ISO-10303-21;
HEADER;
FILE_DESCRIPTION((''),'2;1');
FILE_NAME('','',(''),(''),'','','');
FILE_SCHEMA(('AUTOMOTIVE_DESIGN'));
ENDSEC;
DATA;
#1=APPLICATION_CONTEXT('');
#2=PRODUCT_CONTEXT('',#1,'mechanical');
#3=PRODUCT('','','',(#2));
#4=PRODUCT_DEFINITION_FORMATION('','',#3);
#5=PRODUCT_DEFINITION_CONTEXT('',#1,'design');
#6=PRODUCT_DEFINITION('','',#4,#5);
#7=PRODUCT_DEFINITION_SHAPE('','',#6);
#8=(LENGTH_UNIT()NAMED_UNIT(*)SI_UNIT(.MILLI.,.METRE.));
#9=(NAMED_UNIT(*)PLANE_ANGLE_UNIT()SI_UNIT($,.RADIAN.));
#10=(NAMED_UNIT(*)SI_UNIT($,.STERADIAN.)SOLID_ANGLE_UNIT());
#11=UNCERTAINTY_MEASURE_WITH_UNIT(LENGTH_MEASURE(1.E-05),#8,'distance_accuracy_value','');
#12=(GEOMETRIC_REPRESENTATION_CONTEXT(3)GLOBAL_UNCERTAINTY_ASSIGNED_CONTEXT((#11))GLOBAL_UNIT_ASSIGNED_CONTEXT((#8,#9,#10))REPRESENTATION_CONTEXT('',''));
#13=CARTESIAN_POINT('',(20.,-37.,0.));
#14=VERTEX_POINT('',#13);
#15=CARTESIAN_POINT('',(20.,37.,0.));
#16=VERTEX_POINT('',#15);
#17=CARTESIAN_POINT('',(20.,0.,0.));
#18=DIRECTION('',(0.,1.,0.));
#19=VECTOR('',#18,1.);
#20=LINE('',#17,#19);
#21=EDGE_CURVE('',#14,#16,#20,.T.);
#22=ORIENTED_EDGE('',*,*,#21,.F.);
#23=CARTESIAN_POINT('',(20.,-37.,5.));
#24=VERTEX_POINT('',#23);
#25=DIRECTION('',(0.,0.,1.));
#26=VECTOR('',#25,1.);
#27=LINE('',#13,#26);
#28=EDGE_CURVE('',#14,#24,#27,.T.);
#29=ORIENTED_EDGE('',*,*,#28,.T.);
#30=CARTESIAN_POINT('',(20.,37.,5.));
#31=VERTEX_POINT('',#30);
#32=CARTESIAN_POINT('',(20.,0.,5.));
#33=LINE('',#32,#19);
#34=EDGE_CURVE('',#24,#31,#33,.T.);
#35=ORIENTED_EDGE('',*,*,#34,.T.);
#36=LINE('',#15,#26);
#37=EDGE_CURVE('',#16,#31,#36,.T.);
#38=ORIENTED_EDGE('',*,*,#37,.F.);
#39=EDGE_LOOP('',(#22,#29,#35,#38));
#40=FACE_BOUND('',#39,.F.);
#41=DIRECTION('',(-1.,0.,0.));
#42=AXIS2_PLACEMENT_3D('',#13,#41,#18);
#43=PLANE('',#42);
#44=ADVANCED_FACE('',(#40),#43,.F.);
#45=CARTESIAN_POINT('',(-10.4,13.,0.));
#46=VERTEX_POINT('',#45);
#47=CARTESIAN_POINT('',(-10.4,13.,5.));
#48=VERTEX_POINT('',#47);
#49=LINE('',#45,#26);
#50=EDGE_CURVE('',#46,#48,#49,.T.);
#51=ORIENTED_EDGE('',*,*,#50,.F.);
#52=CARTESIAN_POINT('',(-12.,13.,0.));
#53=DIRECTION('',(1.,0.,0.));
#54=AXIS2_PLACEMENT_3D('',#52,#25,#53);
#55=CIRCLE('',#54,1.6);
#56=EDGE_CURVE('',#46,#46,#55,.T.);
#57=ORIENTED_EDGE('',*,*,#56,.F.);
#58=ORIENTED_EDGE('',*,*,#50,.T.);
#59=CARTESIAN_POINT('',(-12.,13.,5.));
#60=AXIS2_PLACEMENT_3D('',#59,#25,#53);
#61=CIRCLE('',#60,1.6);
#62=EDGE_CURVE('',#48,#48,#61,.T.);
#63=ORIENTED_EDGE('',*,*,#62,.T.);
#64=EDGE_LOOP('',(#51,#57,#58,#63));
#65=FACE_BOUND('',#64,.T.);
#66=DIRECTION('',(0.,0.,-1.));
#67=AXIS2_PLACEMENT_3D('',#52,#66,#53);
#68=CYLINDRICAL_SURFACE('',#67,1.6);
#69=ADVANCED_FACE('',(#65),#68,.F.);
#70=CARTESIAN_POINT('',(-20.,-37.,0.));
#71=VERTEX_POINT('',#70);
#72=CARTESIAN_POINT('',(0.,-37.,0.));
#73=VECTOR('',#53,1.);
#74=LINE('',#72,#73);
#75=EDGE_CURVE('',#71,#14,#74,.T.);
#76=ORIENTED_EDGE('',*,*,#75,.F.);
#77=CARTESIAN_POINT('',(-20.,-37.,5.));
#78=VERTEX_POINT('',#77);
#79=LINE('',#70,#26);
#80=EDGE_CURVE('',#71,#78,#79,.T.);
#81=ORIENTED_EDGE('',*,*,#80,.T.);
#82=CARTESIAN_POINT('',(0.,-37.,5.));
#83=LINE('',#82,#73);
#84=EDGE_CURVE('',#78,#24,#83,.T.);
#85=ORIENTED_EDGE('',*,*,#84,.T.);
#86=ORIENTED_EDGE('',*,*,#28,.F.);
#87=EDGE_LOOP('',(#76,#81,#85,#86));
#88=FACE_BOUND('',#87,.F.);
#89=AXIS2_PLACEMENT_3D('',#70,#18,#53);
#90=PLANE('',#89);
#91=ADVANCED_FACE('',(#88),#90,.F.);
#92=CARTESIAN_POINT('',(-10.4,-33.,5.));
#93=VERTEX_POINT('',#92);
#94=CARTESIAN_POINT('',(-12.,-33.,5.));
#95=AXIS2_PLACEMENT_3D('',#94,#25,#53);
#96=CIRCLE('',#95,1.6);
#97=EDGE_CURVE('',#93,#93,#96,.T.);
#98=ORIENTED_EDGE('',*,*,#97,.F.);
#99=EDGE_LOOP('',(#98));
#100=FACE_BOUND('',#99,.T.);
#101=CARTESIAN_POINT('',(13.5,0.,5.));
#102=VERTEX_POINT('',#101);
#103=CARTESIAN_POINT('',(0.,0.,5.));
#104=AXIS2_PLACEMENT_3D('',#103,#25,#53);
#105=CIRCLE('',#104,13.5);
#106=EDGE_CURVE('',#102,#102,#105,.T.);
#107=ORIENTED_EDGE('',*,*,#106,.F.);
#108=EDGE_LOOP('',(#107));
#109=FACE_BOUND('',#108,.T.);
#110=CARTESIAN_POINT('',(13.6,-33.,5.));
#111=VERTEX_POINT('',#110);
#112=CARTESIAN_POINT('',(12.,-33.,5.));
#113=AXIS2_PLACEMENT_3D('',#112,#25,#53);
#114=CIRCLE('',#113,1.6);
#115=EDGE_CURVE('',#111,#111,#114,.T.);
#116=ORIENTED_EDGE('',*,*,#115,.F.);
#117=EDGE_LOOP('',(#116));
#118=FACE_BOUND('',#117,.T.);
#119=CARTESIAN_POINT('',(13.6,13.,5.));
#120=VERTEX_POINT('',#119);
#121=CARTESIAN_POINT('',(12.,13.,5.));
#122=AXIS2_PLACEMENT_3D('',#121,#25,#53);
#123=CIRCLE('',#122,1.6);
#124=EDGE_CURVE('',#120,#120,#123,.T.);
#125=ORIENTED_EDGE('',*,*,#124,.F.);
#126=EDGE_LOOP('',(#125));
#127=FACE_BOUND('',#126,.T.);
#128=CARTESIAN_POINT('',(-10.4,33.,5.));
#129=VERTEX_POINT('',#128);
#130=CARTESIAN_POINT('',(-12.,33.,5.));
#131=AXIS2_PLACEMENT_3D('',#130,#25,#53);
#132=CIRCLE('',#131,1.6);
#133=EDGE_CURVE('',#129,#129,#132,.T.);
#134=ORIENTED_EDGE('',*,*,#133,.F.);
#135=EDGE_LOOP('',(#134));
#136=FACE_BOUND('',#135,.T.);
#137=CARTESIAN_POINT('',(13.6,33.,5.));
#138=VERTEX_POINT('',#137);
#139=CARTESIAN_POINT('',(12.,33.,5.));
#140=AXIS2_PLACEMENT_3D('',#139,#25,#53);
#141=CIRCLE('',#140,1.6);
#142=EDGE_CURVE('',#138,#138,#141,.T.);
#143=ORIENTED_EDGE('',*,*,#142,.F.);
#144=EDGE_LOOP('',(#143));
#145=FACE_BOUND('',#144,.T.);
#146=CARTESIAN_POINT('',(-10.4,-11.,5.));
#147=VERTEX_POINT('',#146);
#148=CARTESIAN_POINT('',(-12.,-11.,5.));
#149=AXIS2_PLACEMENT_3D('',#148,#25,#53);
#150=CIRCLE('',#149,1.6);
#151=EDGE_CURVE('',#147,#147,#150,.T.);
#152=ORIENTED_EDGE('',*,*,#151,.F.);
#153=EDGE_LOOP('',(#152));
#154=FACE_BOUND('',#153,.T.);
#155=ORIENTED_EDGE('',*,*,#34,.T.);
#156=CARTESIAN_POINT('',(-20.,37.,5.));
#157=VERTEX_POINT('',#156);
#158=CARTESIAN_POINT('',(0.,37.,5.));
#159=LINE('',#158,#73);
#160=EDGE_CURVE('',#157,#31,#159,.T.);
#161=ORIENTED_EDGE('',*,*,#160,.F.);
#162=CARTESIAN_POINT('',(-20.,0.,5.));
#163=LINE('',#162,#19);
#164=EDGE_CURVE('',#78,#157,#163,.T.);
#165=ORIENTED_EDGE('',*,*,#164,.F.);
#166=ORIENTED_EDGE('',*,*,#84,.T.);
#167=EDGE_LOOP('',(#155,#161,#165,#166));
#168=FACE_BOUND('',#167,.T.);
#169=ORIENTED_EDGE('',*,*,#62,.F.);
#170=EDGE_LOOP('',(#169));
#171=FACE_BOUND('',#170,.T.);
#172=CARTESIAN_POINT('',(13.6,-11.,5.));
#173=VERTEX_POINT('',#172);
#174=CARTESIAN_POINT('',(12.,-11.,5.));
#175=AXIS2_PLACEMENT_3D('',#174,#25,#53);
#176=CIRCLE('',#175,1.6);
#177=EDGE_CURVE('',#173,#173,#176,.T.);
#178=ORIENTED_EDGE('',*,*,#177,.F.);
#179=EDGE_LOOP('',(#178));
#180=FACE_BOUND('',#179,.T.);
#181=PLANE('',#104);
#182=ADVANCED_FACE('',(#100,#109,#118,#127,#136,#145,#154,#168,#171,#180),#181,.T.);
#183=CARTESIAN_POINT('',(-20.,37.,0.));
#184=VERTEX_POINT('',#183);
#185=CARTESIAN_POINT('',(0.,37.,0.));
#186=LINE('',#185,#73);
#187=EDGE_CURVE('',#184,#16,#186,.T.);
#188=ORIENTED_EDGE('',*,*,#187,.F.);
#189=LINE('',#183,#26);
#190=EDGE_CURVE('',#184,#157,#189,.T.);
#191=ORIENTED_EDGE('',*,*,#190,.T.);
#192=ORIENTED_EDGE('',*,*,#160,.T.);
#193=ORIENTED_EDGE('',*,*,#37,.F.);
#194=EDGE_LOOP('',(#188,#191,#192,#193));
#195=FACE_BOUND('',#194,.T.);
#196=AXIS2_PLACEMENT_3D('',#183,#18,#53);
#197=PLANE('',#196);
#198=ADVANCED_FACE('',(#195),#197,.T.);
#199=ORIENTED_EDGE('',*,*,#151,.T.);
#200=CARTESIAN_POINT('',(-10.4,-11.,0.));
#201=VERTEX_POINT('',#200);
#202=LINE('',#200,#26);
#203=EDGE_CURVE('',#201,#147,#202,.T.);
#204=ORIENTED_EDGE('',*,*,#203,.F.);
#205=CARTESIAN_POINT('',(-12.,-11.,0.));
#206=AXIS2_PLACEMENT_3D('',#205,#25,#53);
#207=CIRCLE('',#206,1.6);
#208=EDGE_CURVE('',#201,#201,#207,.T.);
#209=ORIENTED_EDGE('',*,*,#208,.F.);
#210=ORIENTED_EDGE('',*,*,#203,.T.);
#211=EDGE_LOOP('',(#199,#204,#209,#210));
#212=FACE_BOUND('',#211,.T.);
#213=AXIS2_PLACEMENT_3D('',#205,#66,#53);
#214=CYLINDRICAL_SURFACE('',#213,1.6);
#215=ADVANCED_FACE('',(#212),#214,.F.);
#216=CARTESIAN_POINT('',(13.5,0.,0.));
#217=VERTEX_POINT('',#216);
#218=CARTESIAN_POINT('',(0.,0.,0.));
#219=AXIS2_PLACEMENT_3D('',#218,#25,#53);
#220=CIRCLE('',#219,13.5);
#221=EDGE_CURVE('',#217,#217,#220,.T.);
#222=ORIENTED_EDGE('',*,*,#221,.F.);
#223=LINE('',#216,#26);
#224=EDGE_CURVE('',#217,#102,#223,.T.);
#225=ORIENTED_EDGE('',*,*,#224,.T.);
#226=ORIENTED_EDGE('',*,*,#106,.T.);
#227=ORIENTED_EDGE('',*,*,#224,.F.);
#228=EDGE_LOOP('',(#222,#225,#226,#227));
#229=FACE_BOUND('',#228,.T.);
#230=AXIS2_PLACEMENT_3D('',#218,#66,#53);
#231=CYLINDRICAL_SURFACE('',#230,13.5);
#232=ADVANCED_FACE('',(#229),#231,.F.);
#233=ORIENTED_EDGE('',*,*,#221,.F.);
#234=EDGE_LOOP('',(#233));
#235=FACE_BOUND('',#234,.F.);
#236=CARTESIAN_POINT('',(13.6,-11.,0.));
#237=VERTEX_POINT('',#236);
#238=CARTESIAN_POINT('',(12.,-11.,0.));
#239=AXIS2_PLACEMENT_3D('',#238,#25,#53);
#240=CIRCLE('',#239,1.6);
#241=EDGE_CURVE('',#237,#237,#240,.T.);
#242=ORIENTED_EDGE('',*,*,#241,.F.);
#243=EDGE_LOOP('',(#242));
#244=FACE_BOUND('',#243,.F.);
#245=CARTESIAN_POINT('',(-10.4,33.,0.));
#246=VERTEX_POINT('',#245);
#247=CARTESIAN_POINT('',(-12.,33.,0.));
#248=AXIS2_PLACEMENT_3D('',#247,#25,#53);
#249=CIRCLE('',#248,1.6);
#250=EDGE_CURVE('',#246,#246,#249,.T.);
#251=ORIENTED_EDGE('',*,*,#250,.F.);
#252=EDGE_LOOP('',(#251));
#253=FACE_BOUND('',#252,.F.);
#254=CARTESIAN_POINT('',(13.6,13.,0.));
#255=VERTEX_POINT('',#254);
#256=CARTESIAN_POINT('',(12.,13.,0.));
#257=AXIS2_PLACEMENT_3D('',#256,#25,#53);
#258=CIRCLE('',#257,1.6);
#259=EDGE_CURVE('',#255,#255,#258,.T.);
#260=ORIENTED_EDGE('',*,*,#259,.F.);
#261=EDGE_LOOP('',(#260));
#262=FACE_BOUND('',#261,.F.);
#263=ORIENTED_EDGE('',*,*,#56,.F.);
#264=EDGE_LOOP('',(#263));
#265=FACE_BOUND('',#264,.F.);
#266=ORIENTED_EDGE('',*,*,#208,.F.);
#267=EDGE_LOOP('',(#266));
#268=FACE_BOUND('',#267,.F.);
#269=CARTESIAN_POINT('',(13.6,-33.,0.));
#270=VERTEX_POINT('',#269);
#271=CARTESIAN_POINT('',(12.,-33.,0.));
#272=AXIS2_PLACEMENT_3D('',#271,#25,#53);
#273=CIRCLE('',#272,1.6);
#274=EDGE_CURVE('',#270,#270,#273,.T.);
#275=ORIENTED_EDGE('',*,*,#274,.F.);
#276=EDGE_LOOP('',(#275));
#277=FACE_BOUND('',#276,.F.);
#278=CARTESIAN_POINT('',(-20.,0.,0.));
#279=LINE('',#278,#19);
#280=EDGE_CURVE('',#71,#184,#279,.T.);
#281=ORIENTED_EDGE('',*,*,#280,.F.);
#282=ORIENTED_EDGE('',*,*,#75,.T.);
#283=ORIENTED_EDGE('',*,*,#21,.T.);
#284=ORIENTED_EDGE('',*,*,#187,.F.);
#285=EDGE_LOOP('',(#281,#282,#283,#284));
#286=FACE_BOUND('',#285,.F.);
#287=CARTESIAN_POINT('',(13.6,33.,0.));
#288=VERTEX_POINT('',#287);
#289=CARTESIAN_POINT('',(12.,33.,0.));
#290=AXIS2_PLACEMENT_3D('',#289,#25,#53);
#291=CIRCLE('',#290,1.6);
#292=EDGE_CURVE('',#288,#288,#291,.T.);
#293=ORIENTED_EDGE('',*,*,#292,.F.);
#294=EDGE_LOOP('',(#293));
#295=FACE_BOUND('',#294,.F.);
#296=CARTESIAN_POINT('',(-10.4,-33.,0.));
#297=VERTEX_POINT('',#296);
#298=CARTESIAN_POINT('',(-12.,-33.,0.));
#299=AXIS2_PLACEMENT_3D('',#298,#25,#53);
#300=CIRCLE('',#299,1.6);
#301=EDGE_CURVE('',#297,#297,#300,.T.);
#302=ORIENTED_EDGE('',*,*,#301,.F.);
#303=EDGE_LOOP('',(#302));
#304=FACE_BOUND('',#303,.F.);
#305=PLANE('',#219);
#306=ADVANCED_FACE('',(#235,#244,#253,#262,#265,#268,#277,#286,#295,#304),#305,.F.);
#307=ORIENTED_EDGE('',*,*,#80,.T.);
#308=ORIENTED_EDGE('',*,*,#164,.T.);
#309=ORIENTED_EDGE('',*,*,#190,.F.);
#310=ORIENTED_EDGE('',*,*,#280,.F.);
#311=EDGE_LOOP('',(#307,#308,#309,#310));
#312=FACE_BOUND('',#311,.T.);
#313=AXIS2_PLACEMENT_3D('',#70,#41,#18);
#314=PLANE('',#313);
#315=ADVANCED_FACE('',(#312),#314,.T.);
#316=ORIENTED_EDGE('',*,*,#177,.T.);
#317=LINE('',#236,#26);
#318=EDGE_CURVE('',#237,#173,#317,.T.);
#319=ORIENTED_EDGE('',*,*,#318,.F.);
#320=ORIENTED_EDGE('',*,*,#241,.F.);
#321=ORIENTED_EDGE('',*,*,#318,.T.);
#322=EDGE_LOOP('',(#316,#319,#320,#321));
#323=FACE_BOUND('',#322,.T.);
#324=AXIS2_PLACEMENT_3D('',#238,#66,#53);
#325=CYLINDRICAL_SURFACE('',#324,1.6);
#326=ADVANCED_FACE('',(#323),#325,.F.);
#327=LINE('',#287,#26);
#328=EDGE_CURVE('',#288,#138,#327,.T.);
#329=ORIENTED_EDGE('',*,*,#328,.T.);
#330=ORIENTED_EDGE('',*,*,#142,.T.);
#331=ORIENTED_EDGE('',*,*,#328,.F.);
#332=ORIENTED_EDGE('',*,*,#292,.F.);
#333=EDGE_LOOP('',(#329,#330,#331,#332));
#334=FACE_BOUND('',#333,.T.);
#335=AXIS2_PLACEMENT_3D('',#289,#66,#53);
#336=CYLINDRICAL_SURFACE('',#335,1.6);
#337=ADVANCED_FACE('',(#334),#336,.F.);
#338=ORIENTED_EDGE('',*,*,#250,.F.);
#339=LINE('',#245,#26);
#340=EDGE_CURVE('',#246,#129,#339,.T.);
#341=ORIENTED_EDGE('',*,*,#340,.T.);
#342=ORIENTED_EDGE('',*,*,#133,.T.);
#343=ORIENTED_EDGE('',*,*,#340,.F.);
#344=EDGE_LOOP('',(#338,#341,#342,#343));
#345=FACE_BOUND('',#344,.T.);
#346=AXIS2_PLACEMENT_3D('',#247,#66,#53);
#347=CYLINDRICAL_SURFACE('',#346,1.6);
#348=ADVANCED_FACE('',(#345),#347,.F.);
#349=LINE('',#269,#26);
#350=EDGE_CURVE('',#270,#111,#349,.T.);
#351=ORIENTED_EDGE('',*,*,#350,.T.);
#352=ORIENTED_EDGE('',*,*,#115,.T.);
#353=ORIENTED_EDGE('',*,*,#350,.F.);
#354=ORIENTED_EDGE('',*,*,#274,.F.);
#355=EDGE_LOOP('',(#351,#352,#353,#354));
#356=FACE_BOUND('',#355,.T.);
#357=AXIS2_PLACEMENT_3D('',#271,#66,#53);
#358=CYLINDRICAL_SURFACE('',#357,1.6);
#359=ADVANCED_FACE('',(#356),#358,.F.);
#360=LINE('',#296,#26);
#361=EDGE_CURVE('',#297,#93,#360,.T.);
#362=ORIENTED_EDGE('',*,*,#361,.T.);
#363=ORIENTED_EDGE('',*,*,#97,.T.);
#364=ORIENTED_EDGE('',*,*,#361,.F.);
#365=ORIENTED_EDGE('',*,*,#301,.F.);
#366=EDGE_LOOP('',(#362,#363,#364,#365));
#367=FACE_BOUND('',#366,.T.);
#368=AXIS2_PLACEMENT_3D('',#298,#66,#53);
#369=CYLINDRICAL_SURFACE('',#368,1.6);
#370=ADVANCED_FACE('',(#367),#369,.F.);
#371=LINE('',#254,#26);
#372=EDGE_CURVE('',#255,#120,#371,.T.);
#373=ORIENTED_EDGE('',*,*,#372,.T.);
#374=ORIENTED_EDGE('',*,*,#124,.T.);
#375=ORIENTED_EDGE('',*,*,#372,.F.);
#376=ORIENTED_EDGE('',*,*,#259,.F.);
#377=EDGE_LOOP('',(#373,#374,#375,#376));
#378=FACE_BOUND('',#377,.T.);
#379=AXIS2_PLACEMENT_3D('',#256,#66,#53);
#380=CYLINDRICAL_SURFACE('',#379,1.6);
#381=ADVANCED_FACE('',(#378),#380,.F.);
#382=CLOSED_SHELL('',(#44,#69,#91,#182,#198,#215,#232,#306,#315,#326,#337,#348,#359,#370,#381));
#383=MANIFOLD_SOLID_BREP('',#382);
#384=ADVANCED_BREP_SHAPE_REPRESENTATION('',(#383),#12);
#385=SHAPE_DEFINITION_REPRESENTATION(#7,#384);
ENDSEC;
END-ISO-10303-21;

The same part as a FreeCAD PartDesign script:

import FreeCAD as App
import Part
import Sketcher
Q = App.Units.Quantity


def add_polygon(sketch, points):
    """Adds a closed chain of lines whose ends are joined by coincident constraints."""
    first, n = sketch.GeometryCount, len(points)
    for a, b in zip(points, points[1:] + points[:1]):
        sketch.addGeometry(Part.LineSegment(App.Vector(*a, 0), App.Vector(*b, 0)), False)
    for i in range(n):
        sketch.addConstraint(Sketcher.Constraint("Coincident", first + i, 2, first + (i + 1) % n, 1))

doc = App.newDocument("Part")
body = doc.addObject("PartDesign::Body", "Body")

sketch1 = body.newObject("Sketcher::SketchObject", "Sketch")
sketch1.AttachmentSupport = (doc.getObject("XY_Plane"), [""])
sketch1.MapMode = "FlatFace"
add_polygon(sketch1, [(-20, 37), (-20, -37), (20, -37), (20, 37)])
sketch1.addGeometry(Part.Circle(App.Vector(-12, -33, 0), App.Vector(0, 0, 1), 1.6), False)
sketch1.addGeometry(Part.Circle(App.Vector(-12, -11, 0), App.Vector(0, 0, 1), 1.6), False)
sketch1.addGeometry(Part.Circle(App.Vector(12, -33, 0), App.Vector(0, 0, 1), 1.6), False)
sketch1.addGeometry(Part.Circle(App.Vector(12, -11, 0), App.Vector(0, 0, 1), 1.6), False)
sketch1.addGeometry(Part.Circle(App.Vector(-12, 13, 0), App.Vector(0, 0, 1), 1.6), False)
sketch1.addGeometry(Part.Circle(App.Vector(-12, 33, 0), App.Vector(0, 0, 1), 1.6), False)
sketch1.addGeometry(Part.Circle(App.Vector(0, 0, 0), App.Vector(0, 0, 1), 13.5), False)
sketch1.addGeometry(Part.Circle(App.Vector(12, 13, 0), App.Vector(0, 0, 1), 1.6), False)
sketch1.addGeometry(Part.Circle(App.Vector(12, 33, 0), App.Vector(0, 0, 1), 1.6), False)
sketch1.addConstraint([
    Sketcher.Constraint("Vertical", 0),
    Sketcher.Constraint("Horizontal", 1),
    Sketcher.Constraint("Vertical", 2),
    Sketcher.Constraint("Horizontal", 3),
    Sketcher.Constraint("Coincident", 10, 3, -1, 1),
    Sketcher.Constraint("Equal", 4, 5),
    Sketcher.Constraint("Equal", 5, 6),
    Sketcher.Constraint("Equal", 6, 7),
    Sketcher.Constraint("Equal", 7, 8),
    Sketcher.Constraint("Equal", 8, 9),
    Sketcher.Constraint("Equal", 9, 11),
    Sketcher.Constraint("Equal", 11, 12),
    Sketcher.Constraint("Symmetric", 6, 3, 9, 3, -1, 1),
    Sketcher.Constraint("Symmetric", 4, 3, 12, 3, -1, 1),
    Sketcher.Constraint("Symmetric", 0, 2, 2, 2, -1, 1),
    Sketcher.Constraint("Symmetric", 4, 3, 6, 3, -2),
    Sketcher.Constraint("Symmetric", 5, 3, 7, 3, -2),
    Sketcher.Constraint("Symmetric", 8, 3, 11, 3, -2),
    Sketcher.Constraint("Vertical", 4, 3, 5, 3),
    Sketcher.Constraint("Vertical", 5, 3, 8, 3),
    Sketcher.Constraint("Diameter", 10, Q("27 mm")),
    Sketcher.Constraint("Diameter", 4, Q("3.2 mm")),
    Sketcher.Constraint("DistanceX", 1, 1, 1, 2, Q("40 mm")),
    Sketcher.Constraint("DistanceY", 0, 2, 0, 1, Q("74 mm")),
    Sketcher.Constraint("DistanceX", 4, 3, -1, 1, Q("12 mm")),
    Sketcher.Constraint("DistanceY", 4, 3, -1, 1, Q("33 mm")),
    Sketcher.Constraint("DistanceY", 5, 3, -1, 1, Q("11 mm")),
    Sketcher.Constraint("DistanceY", -1, 1, 8, 3, Q("13 mm")),
])
pad1 = body.newObject("PartDesign::Pad", "Pad")
pad1.Profile = sketch1
pad1.Length = 5

doc.recompute()
